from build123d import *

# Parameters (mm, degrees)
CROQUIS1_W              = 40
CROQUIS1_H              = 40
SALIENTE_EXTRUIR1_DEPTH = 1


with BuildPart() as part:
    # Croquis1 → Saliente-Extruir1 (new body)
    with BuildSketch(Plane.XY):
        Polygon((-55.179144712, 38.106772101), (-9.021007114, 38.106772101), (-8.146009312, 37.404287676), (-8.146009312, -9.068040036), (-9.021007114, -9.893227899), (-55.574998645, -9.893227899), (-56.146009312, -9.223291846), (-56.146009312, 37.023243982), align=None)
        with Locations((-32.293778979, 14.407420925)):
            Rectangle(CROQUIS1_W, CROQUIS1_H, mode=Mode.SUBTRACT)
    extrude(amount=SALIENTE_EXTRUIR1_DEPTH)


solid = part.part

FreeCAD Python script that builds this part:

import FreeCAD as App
import Part
import Sketcher
from FreeCAD import Vector

doc = App.newDocument("Part")
body = doc.addObject("PartDesign::Body", "Body")

sketch1 = body.newObject("Sketcher::SketchObject", "Sketch")
sketch1.AttachmentSupport = (doc.getObject("XY_Plane"), [""])
sketch1.MapMode = "FlatFace"
sketch1.addGeometry(Part.LineSegment(Vector(-9.021007, 38.106772, 0), Vector(-55.179145, 38.106772, 0)), False)
sketch1.addGeometry(Part.LineSegment(Vector(-55.179145, 38.106772, 0), Vector(-56.146009, 37.023244, 0)), False)
sketch1.addGeometry(Part.LineSegment(Vector(-56.146009, 37.023244, 0), Vector(-56.146009, -9.223292, 0)), False)
sketch1.addGeometry(Part.LineSegment(Vector(-56.146009, -9.223292, 0), Vector(-55.574999, -9.893228, 0)), False)
sketch1.addGeometry(Part.LineSegment(Vector(-55.574999, -9.893228, 0), Vector(-9.021007, -9.893228, 0)), False)
sketch1.addGeometry(Part.LineSegment(Vector(-9.021007, -9.893228, 0), Vector(-8.146009, -9.06804, 0)), False)
sketch1.addGeometry(Part.LineSegment(Vector(-8.146009, -9.06804, 0), Vector(-8.146009, 37.404288, 0)), False)
sketch1.addGeometry(Part.LineSegment(Vector(-8.146009, 37.404288, 0), Vector(-9.021007, 38.106772, 0)), False)
sketch1.addGeometry(Part.LineSegment(Vector(-52.293779, -5.592579, 0), Vector(-52.293779, 34.407421, 0)), False)
sketch1.addGeometry(Part.LineSegment(Vector(-52.293779, 34.407421, 0), Vector(-12.293779, 34.407421, 0)), False)
sketch1.addGeometry(Part.LineSegment(Vector(-12.293779, 34.407421, 0), Vector(-12.293779, -5.592579, 0)), False)
sketch1.addGeometry(Part.LineSegment(Vector(-12.293779, -5.592579, 0), Vector(-52.293779, -5.592579, 0)), False)
sketch1.addConstraint(Sketcher.Constraint("Coincident", 0, 2, 1, 1))
sketch1.addConstraint(Sketcher.Constraint("Coincident", 1, 2, 2, 1))
sketch1.addConstraint(Sketcher.Constraint("Coincident", 2, 2, 3, 1))
sketch1.addConstraint(Sketcher.Constraint("Coincident", 3, 2, 4, 1))
sketch1.addConstraint(Sketcher.Constraint("Coincident", 4, 2, 5, 1))
sketch1.addConstraint(Sketcher.Constraint("Coincident", 5, 2, 6, 1))
sketch1.addConstraint(Sketcher.Constraint("Coincident", 6, 2, 7, 1))
sketch1.addConstraint(Sketcher.Constraint("Coincident", 7, 2, 0, 1))
sketch1.addConstraint(Sketcher.Constraint("Coincident", 8, 2, 9, 1))
sketch1.addConstraint(Sketcher.Constraint("Coincident", 9, 2, 10, 1))
sketch1.addConstraint(Sketcher.Constraint("Coincident", 10, 2, 11, 1))
sketch1.addConstraint(Sketcher.Constraint("Coincident", 11, 2, 8, 1))
sketch1.addConstraint(Sketcher.Constraint("Horizontal", 0))
sketch1.addConstraint(Sketcher.Constraint("Vertical", 2))
sketch1.addConstraint(Sketcher.Constraint("Horizontal", 4))
sketch1.addConstraint(Sketcher.Constraint("Vertical", 6))
sketch1.addConstraint(Sketcher.Constraint("Vertical", 8))
sketch1.addConstraint(Sketcher.Constraint("Horizontal", 9))
sketch1.addConstraint(Sketcher.Constraint("Vertical", 10))
sketch1.addConstraint(Sketcher.Constraint("Horizontal", 11))
sketch1.addConstraint(Sketcher.Constraint("Vertical", 4, 2, 7, 2))
sketch1.addConstraint(Sketcher.Constraint("Equal", 11, 8))
sketch1.addConstraint(Sketcher.Constraint("DistanceX", 9, 1, 9, 2, 40.0))
sketch1.addConstraint(Sketcher.Constraint("DistanceY", 3, 2, 0, 2, 48.0))
sketch1.addConstraint(Sketcher.Constraint("DistanceX", 2, 2, 5, 2, 48.0))
sketch1.addConstraint(Sketcher.Constraint("DistanceX", 3, 2, -1, 1, 55.574999))
sketch1.addConstraint(Sketcher.Constraint("Distance", 7, 1.122099))
sketch1.addConstraint(Sketcher.Constraint("DistanceX", 4, 1, 4, 2, 46.553992))
sketch1.addConstraint(Sketcher.Constraint("Distance", 1, 1.452192))
sketch1.addConstraint(Sketcher.Constraint("Distance", 5, 1.202729))
sketch1.addConstraint(Sketcher.Constraint("DistanceX", 0, 2, 0, 1, 46.158138))
sketch1.addConstraint(Sketcher.Constraint("DistanceY", 2, 2, 2, 1, 46.246536))
sketch1.addConstraint(Sketcher.Constraint("DistanceY", 6, 1, 6, 2, 46.472328))
sketch1.addConstraint(Sketcher.Constraint("DistanceY", 2, 2, -1, 1, 9.223292))
sketch1.addConstraint(Sketcher.Constraint("DistanceX", 8, 2, -1, 1, 52.293779))
sketch1.addConstraint(Sketcher.Constraint("DistanceY", -1, 1, 8, 2, 34.407421))
pad1 = body.newObject("PartDesign::Pad", "Pad")
pad1.Profile = sketch1
pad1.Length = 1

doc.recompute()
